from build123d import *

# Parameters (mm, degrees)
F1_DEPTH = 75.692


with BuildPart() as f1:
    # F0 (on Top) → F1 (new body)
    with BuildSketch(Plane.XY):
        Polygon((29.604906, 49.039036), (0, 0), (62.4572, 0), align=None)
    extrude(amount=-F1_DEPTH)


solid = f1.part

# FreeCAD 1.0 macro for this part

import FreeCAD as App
import Part
import Sketcher
Q = App.Units.Quantity


def add_polygon(sketch, points):
    """Adds a closed chain of lines whose ends are joined by coincident constraints."""
    first, n = sketch.GeometryCount, len(points)
    for a, b in zip(points, points[1:] + points[:1]):
        sketch.addGeometry(Part.LineSegment(App.Vector(*a, 0), App.Vector(*b, 0)), False)
    for i in range(n):
        sketch.addConstraint(Sketcher.Constraint("Coincident", first + i, 2, first + (i + 1) % n, 1))

doc = App.newDocument("Part")
body = doc.addObject("PartDesign::Body", "Body")

# Sketch on XY plane
sketch1 = doc.addObject("Sketcher::SketchObject", "Sketch")
body.addObject(sketch1)
sketch1.AttachmentSupport = (doc.XY_Plane, [""])
sketch1.MapMode = "FlatFace"
add_polygon(sketch1, [(30, 49), (0, 0), (62, 0)])  # lines 0-2
sketch1.addConstraint(Sketcher.Constraint("Horizontal", 1))
sketch1.addConstraint(Sketcher.Constraint("Coincident", 0, 2, -1, 1))
sketch1.addConstraint(Sketcher.Constraint("DistanceX", 1, 1, 1, 2, 62.4572))
sketch1.addConstraint(Sketcher.Constraint("Distance", 0, 57.282436))
sketch1.addConstraint(Sketcher.Constraint("Distance", 2, 59.026268))
pad1 = doc.addObject("PartDesign::Pad", "Pad")
body.addObject(pad1)
pad1.Profile = sketch1
pad1.Length = Q("2.98 in")
pad1.Reversed = True

doc.recompute()
